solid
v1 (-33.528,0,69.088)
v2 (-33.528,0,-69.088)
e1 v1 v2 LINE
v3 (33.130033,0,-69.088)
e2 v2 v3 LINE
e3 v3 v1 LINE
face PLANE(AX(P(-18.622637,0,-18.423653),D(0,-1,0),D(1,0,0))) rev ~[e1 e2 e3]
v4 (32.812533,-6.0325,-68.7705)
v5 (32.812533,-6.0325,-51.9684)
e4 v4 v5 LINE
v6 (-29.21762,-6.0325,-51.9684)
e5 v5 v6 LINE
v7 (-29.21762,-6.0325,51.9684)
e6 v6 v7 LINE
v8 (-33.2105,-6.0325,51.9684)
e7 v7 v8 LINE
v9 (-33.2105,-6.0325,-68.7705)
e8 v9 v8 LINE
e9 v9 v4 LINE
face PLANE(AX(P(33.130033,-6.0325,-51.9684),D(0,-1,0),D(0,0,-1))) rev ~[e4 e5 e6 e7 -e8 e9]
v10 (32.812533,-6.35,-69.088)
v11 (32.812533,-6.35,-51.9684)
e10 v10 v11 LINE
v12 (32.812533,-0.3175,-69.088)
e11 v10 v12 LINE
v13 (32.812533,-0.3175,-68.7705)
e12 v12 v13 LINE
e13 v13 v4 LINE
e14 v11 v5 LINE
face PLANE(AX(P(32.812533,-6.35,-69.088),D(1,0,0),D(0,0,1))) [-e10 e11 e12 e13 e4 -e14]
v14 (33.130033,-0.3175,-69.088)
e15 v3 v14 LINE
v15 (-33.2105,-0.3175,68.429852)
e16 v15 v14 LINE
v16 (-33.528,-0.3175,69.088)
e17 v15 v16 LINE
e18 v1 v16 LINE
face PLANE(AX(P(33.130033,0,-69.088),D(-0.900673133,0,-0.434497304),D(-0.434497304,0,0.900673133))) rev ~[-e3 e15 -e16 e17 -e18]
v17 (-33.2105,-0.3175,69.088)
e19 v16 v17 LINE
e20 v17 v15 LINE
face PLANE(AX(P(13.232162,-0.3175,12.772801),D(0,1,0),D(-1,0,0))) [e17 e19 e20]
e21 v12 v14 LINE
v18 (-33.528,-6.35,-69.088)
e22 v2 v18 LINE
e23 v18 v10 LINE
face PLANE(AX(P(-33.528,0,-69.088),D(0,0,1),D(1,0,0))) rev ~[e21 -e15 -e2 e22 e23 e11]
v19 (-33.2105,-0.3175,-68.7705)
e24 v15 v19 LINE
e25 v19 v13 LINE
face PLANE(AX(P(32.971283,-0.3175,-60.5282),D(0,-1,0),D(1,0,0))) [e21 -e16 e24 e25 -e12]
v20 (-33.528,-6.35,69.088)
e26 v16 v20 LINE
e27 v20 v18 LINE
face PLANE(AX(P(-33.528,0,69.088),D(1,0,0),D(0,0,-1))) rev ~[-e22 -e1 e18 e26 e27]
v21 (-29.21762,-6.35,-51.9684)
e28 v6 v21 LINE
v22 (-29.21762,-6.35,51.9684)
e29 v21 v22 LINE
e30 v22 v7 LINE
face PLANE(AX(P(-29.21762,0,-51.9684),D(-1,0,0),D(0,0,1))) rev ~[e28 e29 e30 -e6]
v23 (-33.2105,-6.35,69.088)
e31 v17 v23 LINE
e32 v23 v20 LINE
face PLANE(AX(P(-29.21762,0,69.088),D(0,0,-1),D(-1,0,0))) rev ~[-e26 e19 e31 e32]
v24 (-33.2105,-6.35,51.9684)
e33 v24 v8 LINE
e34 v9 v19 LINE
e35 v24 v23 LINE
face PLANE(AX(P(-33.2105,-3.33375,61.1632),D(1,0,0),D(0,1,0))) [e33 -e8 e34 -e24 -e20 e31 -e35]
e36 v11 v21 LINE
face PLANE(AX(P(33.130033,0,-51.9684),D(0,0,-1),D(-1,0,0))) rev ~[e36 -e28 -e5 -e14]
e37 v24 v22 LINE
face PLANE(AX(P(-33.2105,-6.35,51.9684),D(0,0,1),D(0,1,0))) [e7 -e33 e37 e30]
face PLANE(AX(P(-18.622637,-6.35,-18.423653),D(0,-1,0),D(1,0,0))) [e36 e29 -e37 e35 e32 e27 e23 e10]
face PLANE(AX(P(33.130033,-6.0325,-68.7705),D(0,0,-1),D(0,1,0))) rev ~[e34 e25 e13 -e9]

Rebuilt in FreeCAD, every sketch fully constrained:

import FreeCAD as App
import Part
import Sketcher
from FreeCAD import Vector
Q = App.Units.Quantity

doc = App.newDocument("Part")
body = doc.addObject("PartDesign::Body", "Body")

sketch1 = doc.addObject("Sketcher::SketchObject", "Sketch")
body.addObject(sketch1)
sketch1.AttachmentSupport = (doc.XZ_Plane, [""])
sketch1.MapMode = "FlatFace"
sketch1.addGeometry(Part.LineSegment(Vector(-33.5, 69.1, 0), Vector(-33.5, -69.1, 0)), False)
sketch1.addGeometry(Part.LineSegment(Vector(-33.5, -69.1, 0), Vector(33.1, -69.1, 0)), False)
sketch1.addGeometry(Part.LineSegment(Vector(33.1, -69.1, 0), Vector(33.1, -52, 0)), False)
sketch1.addGeometry(Part.LineSegment(Vector(33.1, -52, 0), Vector(-29.2, -52, 0)), False)
sketch1.addGeometry(Part.LineSegment(Vector(-29.2, -52, 0), Vector(-29.2, 69.1, 0)), False)
sketch1.addGeometry(Part.LineSegment(Vector(-29.2, 69.1, 0), Vector(-33.5, 69.1, 0)), False)
sketch1.addConstraint(Sketcher.Constraint("Coincident", 0, 2, 1, 1))
sketch1.addConstraint(Sketcher.Constraint("Coincident", 1, 2, 2, 1))
sketch1.addConstraint(Sketcher.Constraint("Coincident", 2, 2, 3, 1))
sketch1.addConstraint(Sketcher.Constraint("Coincident", 3, 2, 4, 1))
sketch1.addConstraint(Sketcher.Constraint("Coincident", 4, 2, 5, 1))
sketch1.addConstraint(Sketcher.Constraint("Coincident", 5, 2, 0, 1))
sketch1.addConstraint(Sketcher.Constraint("Vertical", 0))
sketch1.addConstraint(Sketcher.Constraint("Horizontal", 1))
sketch1.addConstraint(Sketcher.Constraint("Vertical", 2))
sketch1.addConstraint(Sketcher.Constraint("Horizontal", 3))
sketch1.addConstraint(Sketcher.Constraint("Vertical", 4))
sketch1.addConstraint(Sketcher.Constraint("Horizontal", 5))
sketch1.addConstraint(Sketcher.Constraint("DistanceY", 0, 2, 0, 1, Q("5.44 in")))
sketch1.addConstraint(Sketcher.Constraint("DistanceY", 2, 1, 2, 2, Q("0.674 in")))
sketch1.addConstraint(Sketcher.Constraint("DistanceX", 0, 2, -1, 1, Q("1.32 in")))
sketch1.addConstraint(Sketcher.Constraint("DistanceY", 0, 2, -1, 1, Q("2.72 in")))
sketch1.addConstraint(Sketcher.Constraint("DistanceX", 5, 2, 5, 1, Q("0.1697 in")))
sketch1.addConstraint(Sketcher.Constraint("DistanceX", 1, 1, 1, 2, 66.658033))
pad1 = doc.addObject("PartDesign::Pad", "Pad")
body.addObject(pad1)
pad1.Profile = sketch1
pad1.Length = Q("0.25 in")

sketch2 = doc.addObject("Sketcher::SketchObject", "Sketch001")
body.addObject(sketch2)
sketch2.AttachmentSupport = (doc.YZ_Plane, [""])
sketch2.MapMode = "FlatFace"
sketch2.addGeometry(Part.LineSegment(Vector(-6, 69, 0), Vector(-6, 52, 0)), False)
sketch2.addGeometry(Part.LineSegment(Vector(-6, 52, 0), Vector(0, 52, 0)), False)
sketch2.addGeometry(Part.LineSegment(Vector(0, 52, 0), Vector(0, 69, 0)), False)
sketch2.addGeometry(Part.LineSegment(Vector(0, 69, 0), Vector(-6, 69, 0)), False)
sketch2.addGeometry(Part.LineSegment(Vector(-6, -52, 0), Vector(-6, -69, 0)), False)
sketch2.addGeometry(Part.LineSegment(Vector(-6, -69, 0), Vector(0, -69, 0)), False)
sketch2.addGeometry(Part.LineSegment(Vector(0, -69, 0), Vector(0, -52, 0)), False)
sketch2.addGeometry(Part.LineSegment(Vector(0, -52, 0), Vector(-6, -52, 0)), False)
sketch2.addConstraint(Sketcher.Constraint("Coincident", 0, 2, 1, 1))
sketch2.addConstraint(Sketcher.Constraint("Coincident", 1, 2, 2, 1))
sketch2.addConstraint(Sketcher.Constraint("Coincident", 2, 2, 3, 1))
sketch2.addConstraint(Sketcher.Constraint("Coincident", 3, 2, 0, 1))
sketch2.addConstraint(Sketcher.Constraint("Coincident", 4, 2, 5, 1))
sketch2.addConstraint(Sketcher.Constraint("Coincident", 5, 2, 6, 1))
sketch2.addConstraint(Sketcher.Constraint("Coincident", 6, 2, 7, 1))
sketch2.addConstraint(Sketcher.Constraint("Coincident", 7, 2, 4, 1))
sketch2.addConstraint(Sketcher.Constraint("Vertical", 0))
sketch2.addConstraint(Sketcher.Constraint("Horizontal", 1))
sketch2.addConstraint(Sketcher.Constraint("Vertical", 2))
sketch2.addConstraint(Sketcher.Constraint("Horizontal", 3))
sketch2.addConstraint(Sketcher.Constraint("Vertical", 4))
sketch2.addConstraint(Sketcher.Constraint("Horizontal", 5))
sketch2.addConstraint(Sketcher.Constraint("Vertical", 6))
sketch2.addConstraint(Sketcher.Constraint("Horizontal", 7))
sketch2.addConstraint(Sketcher.Constraint("Symmetric", 3, 2, 4, 2, -1))
sketch2.addConstraint(Sketcher.Constraint("Symmetric", 1, 2, 6, 2, -1))
sketch2.addConstraint(Sketcher.Constraint("DistanceX", 1, 1, 1, 2, Q("0.225 in")))
sketch2.addConstraint(Sketcher.Constraint("DistanceY", 0, 2, 0, 1, Q("0.6615 in")))
sketch2.addConstraint(Sketcher.Constraint("DistanceY", -1, 1, 0, 2, Q("2.046 in")))
sketch2.addConstraint(Sketcher.Constraint("DistanceX", 0, 2, -1, 1, Q("0.2375 in")))
pocket1 = doc.addObject("PartDesign::Pocket", "Pocket")
body.addObject(pocket1)
pocket1.Profile = sketch2
pocket1.Length = 66.023032
pocket1.Midplane = True

sketch3 = doc.addObject("Sketcher::SketchObject", "Sketch002")
body.addObject(sketch3)
sketch3.AttachmentSupport = (doc.XY_Plane, [""])
sketch3.MapMode = "FlatFace"
sketch3.addGeometry(Part.LineSegment(Vector(-33.2, -0.3, 0), Vector(-33.2, -6, 0)), False)
sketch3.addGeometry(Part.LineSegment(Vector(-33.2, -6, 0), Vector(-29.2, -6, 0)), False)
sketch3.addGeometry(Part.LineSegment(Vector(-29.2, -6, 0), Vector(-29.2, -0.3, 0)), False)
sketch3.addGeometry(Part.LineSegment(Vector(-29.2, -0.3, 0), Vector(-33.2, -0.3, 0)), False)
sketch3.addConstraint(Sketcher.Constraint("Coincident", 0, 2, 1, 1))
sketch3.addConstraint(Sketcher.Constraint("Coincident", 1, 2, 2, 1))
sketch3.addConstraint(Sketcher.Constraint("Coincident", 2, 2, 3, 1))
sketch3.addConstraint(Sketcher.Constraint("Coincident", 3, 2, 0, 1))
sketch3.addConstraint(Sketcher.Constraint("Vertical", 0))
sketch3.addConstraint(Sketcher.Constraint("Horizontal", 1))
sketch3.addConstraint(Sketcher.Constraint("Vertical", 2))
sketch3.addConstraint(Sketcher.Constraint("Horizontal", 3))
sketch3.addConstraint(Sketcher.Constraint("DistanceY", 0, 2, 0, 1, Q("0.225 in")))
sketch3.addConstraint(Sketcher.Constraint("DistanceX", 1, 1, 1, 2, Q("0.1572 in")))
sketch3.addConstraint(Sketcher.Constraint("DistanceX", 0, 2, -1, 1, Q("1.3075 in")))
sketch3.addConstraint(Sketcher.Constraint("DistanceY", 0, 2, -1, 1, Q("0.2375 in")))
pocket2 = doc.addObject("PartDesign::Pocket", "Pocket001")
body.addObject(pocket2)
pocket2.Profile = sketch3
pocket2.Length = Q("5.415 in")
pocket2.Midplane = True

sketch4 = doc.addObject("Sketcher::SketchObject", "Sketch003")
body.addObject(sketch4)
sketch4.AttachmentSupport = (doc.YZ_Plane, [""])
sketch4.MapMode = "FlatFace"
sketch4.AttachmentOffset = App.Placement(Vector(0, 0, -1.1503 * 25.4), App.Rotation())
sketch4.addGeometry(Part.LineSegment(Vector(-0.32, 69.09, 0), Vector(-0.32, -69.09, 0)), False)
sketch4.addGeometry(Part.LineSegment(Vector(-0.32, -69.09, 0), Vector(0, -69.09, 0)), False)
sketch4.addGeometry(Part.LineSegment(Vector(0, -69.09, 0), Vector(0, 69.09, 0)), False)
sketch4.addGeometry(Part.LineSegment(Vector(0, 69.09, 0), Vector(-0.32, 69.09, 0)), False)
sketch4.addConstraint(Sketcher.Constraint("Coincident", 0, 2, 1, 1))
sketch4.addConstraint(Sketcher.Constraint("Coincident", 1, 2, 2, 1))
sketch4.addConstraint(Sketcher.Constraint("Coincident", 2, 2, 3, 1))
sketch4.addConstraint(Sketcher.Constraint("Coincident", 3, 2, 0, 1))
sketch4.addConstraint(Sketcher.Constraint("Vertical", 0))
sketch4.addConstraint(Sketcher.Constraint("Horizontal", 1))
sketch4.addConstraint(Sketcher.Constraint("Vertical", 2))
sketch4.addConstraint(Sketcher.Constraint("Horizontal", 3))
sketch4.addConstraint(Sketcher.Constraint("Symmetric", 1, 2, 2, 2, -1, 1))
sketch4.addConstraint(Sketcher.Constraint("DistanceY", 0, 2, 0, 1, Q("5.44 in")))
sketch4.addConstraint(Sketcher.Constraint("DistanceX", 1, 1, 1, 2, Q("0.0125 in")))
pad2 = doc.addObject("PartDesign::Pad", "Pad001")
body.addObject(pad2)
pad2.Profile = sketch4
pad2.Length = Q("2.5 in")

sketch5 = doc.addObject("Sketcher::SketchObject", "Sketch004")
body.addObject(sketch5)
sketch5.AttachmentSupport = (doc.YZ_Plane, [""])
sketch5.MapMode = "FlatFace"
sketch5.AttachmentOffset = App.Placement(Vector(0, 0, 33.130033), App.Rotation())
sketch5.addGeometry(Part.LineSegment(Vector(-6, -52, 0), Vector(-6, -69, 0)), False)
sketch5.addGeometry(Part.LineSegment(Vector(-6, -69, 0), Vector(0, -69, 0)), False)
sketch5.addGeometry(Part.LineSegment(Vector(0, -69, 0), Vector(0, -52, 0)), False)
sketch5.addGeometry(Part.LineSegment(Vector(0, -52, 0), Vector(-6, -52, 0)), False)
sketch5.addConstraint(Sketcher.Constraint("Coincident", 0, 2, 1, 1))
sketch5.addConstraint(Sketcher.Constraint("Coincident", 1, 2, 2, 1))
sketch5.addConstraint(Sketcher.Constraint("Coincident", 2, 2, 3, 1))
sketch5.addConstraint(Sketcher.Constraint("Coincident", 3, 2, 0, 1))
sketch5.addConstraint(Sketcher.Constraint("Vertical", 0))
sketch5.addConstraint(Sketcher.Constraint("Horizontal", 1))
sketch5.addConstraint(Sketcher.Constraint("Vertical", 2))
sketch5.addConstraint(Sketcher.Constraint("Horizontal", 3))
sketch5.addConstraint(Sketcher.Constraint("DistanceX", 1, 1, 1, 2, Q("0.225 in")))
sketch5.addConstraint(Sketcher.Constraint("DistanceY", 0, 2, 0, 1, Q("0.6615 in")))
sketch5.addConstraint(Sketcher.Constraint("DistanceY", 2, 2, -1, 1, Q("2.046 in")))
sketch5.addConstraint(Sketcher.Constraint("DistanceX", 0, 2, -1, 1, Q("0.2375 in")))
pocket3 = doc.addObject("PartDesign::Pocket", "Pocket002")
body.addObject(pocket3)
pocket3.Profile = sketch5
pocket3.Length = Q("1 in")

sketch6 = doc.addObject("Sketcher::SketchObject", "Sketch005")
body.addObject(sketch6)
sketch6.AttachmentSupport = (doc.YZ_Plane, [""])
sketch6.MapMode = "FlatFace"
sketch6.AttachmentOffset = App.Placement(Vector(0, 0, -1.3075 * 25.4), App.Rotation())
sketch6.addGeometry(Part.LineSegment(Vector(-6, 70, 0), Vector(-6, 52, 0)), False)
sketch6.addGeometry(Part.LineSegment(Vector(-6, 52, 0), Vector(0, 52, 0)), False)
sketch6.addGeometry(Part.LineSegment(Vector(0, 52, 0), Vector(0, 70, 0)), False)
sketch6.addGeometry(Part.LineSegment(Vector(0, 70, 0), Vector(-6, 70, 0)), False)
sketch6.addConstraint(Sketcher.Constraint("Coincident", 0, 2, 1, 1))
sketch6.addConstraint(Sketcher.Constraint("Coincident", 1, 2, 2, 1))
sketch6.addConstraint(Sketcher.Constraint("Coincident", 2, 2, 3, 1))
sketch6.addConstraint(Sketcher.Constraint("Coincident", 3, 2, 0, 1))
sketch6.addConstraint(Sketcher.Constraint("Vertical", 0))
sketch6.addConstraint(Sketcher.Constraint("Horizontal", 1))
sketch6.addConstraint(Sketcher.Constraint("Vertical", 2))
sketch6.addConstraint(Sketcher.Constraint("Horizontal", 3))
sketch6.addConstraint(Sketcher.Constraint("DistanceY", 0, 2, 0, 1, Q("0.724 in")))
sketch6.addConstraint(Sketcher.Constraint("DistanceX", 0, 2, -1, 1, Q("0.25 in")))
sketch6.addConstraint(Sketcher.Constraint("DistanceY", -1, 1, 2, 2, Q("2.77 in")))
sketch6.addConstraint(Sketcher.Constraint("DistanceX", 1, 1, 1, 2, Q("0.2375 in")))
pocket4 = doc.addObject("PartDesign::Pocket", "Pocket003")
body.addObject(pocket4)
pocket4.Profile = sketch6
pocket4.Type = "ThroughAll"
pocket4.Reversed = True

sketch7 = doc.addObject("Sketcher::SketchObject", "Sketch006")
body.addObject(sketch7)
sketch7.AttachmentSupport = (doc.XZ_Plane, [""])
sketch7.MapMode = "FlatFace"
sketch7.addGeometry(Part.LineSegment(Vector(-33.5, 69.1, 0), Vector(34.3, 69.1, 0)), False)
sketch7.addGeometry(Part.LineSegment(Vector(34.3, 69.1, 0), Vector(34.3, -69.1, 0)), False)
sketch7.addGeometry(Part.LineSegment(Vector(34.3, -69.1, 0), Vector(33.1, -69.1, 0)), False)
sketch7.addGeometry(Part.LineSegment(Vector(33.1, -69.1, 0), Vector(-33.5, 69.1, 0)), False)
sketch7.addConstraint(Sketcher.Constraint("Coincident", 0, 2, 1, 1))
sketch7.addConstraint(Sketcher.Constraint("Coincident", 1, 2, 2, 1))
sketch7.addConstraint(Sketcher.Constraint("Coincident", 2, 2, 3, 1))
sketch7.addConstraint(Sketcher.Constraint("Coincident", 3, 2, 0, 1))
sketch7.addConstraint(Sketcher.Constraint("Horizontal", 0))
sketch7.addConstraint(Sketcher.Constraint("Vertical", 1))
sketch7.addConstraint(Sketcher.Constraint("Horizontal", 2))
sketch7.addConstraint(Sketcher.Constraint("DistanceY", 1, 2, 1, 1, Q("5.44 in")))
sketch7.addConstraint(Sketcher.Constraint("DistanceY", -1, 1, 0, 2, Q("2.72 in")))
sketch7.addConstraint(Sketcher.Constraint("DistanceX", 3, 2, -1, 1, Q("1.32 in")))
sketch7.addConstraint(Sketcher.Constraint("DistanceX", 0, 1, 0, 2, Q("2.6697 in")))
sketch7.addConstraint(Sketcher.Constraint("DistanceX", 2, 2, 2, 1, 1.152347))
pocket5 = doc.addObject("PartDesign::Pocket", "Pocket004")
body.addObject(pocket5)
pocket5.Profile = sketch7
pocket5.Length = Q("0.0125 in")
pocket5.Reversed = True

sketch8 = doc.addObject("Sketcher::SketchObject", "Sketch007")
body.addObject(sketch8)
sketch8.AttachmentSupport = (doc.XZ_Plane, [""])
sketch8.MapMode = "FlatFace"
sketch8.AttachmentOffset = App.Placement(Vector(0, 0, 0.25 * 25.4), App.Rotation())
sketch8.addGeometry(Part.LineSegment(Vector(32.812533, -51.9684, 0), Vector(32.812533, -69.088, 0)), False)
sketch8.addGeometry(Part.LineSegment(Vector(32.812533, -69.088, 0), Vector(33.130033, -69.088, 0)), False)
sketch8.addGeometry(Part.LineSegment(Vector(33.130033, -69.088, 0), Vector(33.130033, -51.9684, 0)), False)
sketch8.addGeometry(Part.LineSegment(Vector(33.130033, -51.9684, 0), Vector(32.812533, -51.9684, 0)), False)
sketch8.addConstraint(Sketcher.Constraint("Coincident", 0, 2, 1, 1))
sketch8.addConstraint(Sketcher.Constraint("Coincident", 1, 2, 2, 1))
sketch8.addConstraint(Sketcher.Constraint("Coincident", 2, 2, 3, 1))
sketch8.addConstraint(Sketcher.Constraint("Coincident", 3, 2, 0, 1))
sketch8.addConstraint(Sketcher.Constraint("Vertical", 0))
sketch8.addConstraint(Sketcher.Constraint("Horizontal", 1))
sketch8.addConstraint(Sketcher.Constraint("Vertical", 2))
sketch8.addConstraint(Sketcher.Constraint("Horizontal", 3))
sketch8.addConstraint(Sketcher.Constraint("DistanceY", 0, 2, 0, 1, Q("0.674 in")))
sketch8.addConstraint(Sketcher.Constraint("DistanceY", 0, 2, -1, 1, Q("2.72 in")))
sketch8.addConstraint(Sketcher.Constraint("DistanceX", 1, 1, 1, 2, Q("0.0125 in")))
sketch8.addConstraint(Sketcher.Constraint("DistanceX", -1, 1, 0, 2, 32.812533))
pocket6 = doc.addObject("PartDesign::Pocket", "Pocket005")
body.addObject(pocket6)
pocket6.Profile = sketch8
pocket6.Length = Q("0.2375 in")

doc.recompute()
